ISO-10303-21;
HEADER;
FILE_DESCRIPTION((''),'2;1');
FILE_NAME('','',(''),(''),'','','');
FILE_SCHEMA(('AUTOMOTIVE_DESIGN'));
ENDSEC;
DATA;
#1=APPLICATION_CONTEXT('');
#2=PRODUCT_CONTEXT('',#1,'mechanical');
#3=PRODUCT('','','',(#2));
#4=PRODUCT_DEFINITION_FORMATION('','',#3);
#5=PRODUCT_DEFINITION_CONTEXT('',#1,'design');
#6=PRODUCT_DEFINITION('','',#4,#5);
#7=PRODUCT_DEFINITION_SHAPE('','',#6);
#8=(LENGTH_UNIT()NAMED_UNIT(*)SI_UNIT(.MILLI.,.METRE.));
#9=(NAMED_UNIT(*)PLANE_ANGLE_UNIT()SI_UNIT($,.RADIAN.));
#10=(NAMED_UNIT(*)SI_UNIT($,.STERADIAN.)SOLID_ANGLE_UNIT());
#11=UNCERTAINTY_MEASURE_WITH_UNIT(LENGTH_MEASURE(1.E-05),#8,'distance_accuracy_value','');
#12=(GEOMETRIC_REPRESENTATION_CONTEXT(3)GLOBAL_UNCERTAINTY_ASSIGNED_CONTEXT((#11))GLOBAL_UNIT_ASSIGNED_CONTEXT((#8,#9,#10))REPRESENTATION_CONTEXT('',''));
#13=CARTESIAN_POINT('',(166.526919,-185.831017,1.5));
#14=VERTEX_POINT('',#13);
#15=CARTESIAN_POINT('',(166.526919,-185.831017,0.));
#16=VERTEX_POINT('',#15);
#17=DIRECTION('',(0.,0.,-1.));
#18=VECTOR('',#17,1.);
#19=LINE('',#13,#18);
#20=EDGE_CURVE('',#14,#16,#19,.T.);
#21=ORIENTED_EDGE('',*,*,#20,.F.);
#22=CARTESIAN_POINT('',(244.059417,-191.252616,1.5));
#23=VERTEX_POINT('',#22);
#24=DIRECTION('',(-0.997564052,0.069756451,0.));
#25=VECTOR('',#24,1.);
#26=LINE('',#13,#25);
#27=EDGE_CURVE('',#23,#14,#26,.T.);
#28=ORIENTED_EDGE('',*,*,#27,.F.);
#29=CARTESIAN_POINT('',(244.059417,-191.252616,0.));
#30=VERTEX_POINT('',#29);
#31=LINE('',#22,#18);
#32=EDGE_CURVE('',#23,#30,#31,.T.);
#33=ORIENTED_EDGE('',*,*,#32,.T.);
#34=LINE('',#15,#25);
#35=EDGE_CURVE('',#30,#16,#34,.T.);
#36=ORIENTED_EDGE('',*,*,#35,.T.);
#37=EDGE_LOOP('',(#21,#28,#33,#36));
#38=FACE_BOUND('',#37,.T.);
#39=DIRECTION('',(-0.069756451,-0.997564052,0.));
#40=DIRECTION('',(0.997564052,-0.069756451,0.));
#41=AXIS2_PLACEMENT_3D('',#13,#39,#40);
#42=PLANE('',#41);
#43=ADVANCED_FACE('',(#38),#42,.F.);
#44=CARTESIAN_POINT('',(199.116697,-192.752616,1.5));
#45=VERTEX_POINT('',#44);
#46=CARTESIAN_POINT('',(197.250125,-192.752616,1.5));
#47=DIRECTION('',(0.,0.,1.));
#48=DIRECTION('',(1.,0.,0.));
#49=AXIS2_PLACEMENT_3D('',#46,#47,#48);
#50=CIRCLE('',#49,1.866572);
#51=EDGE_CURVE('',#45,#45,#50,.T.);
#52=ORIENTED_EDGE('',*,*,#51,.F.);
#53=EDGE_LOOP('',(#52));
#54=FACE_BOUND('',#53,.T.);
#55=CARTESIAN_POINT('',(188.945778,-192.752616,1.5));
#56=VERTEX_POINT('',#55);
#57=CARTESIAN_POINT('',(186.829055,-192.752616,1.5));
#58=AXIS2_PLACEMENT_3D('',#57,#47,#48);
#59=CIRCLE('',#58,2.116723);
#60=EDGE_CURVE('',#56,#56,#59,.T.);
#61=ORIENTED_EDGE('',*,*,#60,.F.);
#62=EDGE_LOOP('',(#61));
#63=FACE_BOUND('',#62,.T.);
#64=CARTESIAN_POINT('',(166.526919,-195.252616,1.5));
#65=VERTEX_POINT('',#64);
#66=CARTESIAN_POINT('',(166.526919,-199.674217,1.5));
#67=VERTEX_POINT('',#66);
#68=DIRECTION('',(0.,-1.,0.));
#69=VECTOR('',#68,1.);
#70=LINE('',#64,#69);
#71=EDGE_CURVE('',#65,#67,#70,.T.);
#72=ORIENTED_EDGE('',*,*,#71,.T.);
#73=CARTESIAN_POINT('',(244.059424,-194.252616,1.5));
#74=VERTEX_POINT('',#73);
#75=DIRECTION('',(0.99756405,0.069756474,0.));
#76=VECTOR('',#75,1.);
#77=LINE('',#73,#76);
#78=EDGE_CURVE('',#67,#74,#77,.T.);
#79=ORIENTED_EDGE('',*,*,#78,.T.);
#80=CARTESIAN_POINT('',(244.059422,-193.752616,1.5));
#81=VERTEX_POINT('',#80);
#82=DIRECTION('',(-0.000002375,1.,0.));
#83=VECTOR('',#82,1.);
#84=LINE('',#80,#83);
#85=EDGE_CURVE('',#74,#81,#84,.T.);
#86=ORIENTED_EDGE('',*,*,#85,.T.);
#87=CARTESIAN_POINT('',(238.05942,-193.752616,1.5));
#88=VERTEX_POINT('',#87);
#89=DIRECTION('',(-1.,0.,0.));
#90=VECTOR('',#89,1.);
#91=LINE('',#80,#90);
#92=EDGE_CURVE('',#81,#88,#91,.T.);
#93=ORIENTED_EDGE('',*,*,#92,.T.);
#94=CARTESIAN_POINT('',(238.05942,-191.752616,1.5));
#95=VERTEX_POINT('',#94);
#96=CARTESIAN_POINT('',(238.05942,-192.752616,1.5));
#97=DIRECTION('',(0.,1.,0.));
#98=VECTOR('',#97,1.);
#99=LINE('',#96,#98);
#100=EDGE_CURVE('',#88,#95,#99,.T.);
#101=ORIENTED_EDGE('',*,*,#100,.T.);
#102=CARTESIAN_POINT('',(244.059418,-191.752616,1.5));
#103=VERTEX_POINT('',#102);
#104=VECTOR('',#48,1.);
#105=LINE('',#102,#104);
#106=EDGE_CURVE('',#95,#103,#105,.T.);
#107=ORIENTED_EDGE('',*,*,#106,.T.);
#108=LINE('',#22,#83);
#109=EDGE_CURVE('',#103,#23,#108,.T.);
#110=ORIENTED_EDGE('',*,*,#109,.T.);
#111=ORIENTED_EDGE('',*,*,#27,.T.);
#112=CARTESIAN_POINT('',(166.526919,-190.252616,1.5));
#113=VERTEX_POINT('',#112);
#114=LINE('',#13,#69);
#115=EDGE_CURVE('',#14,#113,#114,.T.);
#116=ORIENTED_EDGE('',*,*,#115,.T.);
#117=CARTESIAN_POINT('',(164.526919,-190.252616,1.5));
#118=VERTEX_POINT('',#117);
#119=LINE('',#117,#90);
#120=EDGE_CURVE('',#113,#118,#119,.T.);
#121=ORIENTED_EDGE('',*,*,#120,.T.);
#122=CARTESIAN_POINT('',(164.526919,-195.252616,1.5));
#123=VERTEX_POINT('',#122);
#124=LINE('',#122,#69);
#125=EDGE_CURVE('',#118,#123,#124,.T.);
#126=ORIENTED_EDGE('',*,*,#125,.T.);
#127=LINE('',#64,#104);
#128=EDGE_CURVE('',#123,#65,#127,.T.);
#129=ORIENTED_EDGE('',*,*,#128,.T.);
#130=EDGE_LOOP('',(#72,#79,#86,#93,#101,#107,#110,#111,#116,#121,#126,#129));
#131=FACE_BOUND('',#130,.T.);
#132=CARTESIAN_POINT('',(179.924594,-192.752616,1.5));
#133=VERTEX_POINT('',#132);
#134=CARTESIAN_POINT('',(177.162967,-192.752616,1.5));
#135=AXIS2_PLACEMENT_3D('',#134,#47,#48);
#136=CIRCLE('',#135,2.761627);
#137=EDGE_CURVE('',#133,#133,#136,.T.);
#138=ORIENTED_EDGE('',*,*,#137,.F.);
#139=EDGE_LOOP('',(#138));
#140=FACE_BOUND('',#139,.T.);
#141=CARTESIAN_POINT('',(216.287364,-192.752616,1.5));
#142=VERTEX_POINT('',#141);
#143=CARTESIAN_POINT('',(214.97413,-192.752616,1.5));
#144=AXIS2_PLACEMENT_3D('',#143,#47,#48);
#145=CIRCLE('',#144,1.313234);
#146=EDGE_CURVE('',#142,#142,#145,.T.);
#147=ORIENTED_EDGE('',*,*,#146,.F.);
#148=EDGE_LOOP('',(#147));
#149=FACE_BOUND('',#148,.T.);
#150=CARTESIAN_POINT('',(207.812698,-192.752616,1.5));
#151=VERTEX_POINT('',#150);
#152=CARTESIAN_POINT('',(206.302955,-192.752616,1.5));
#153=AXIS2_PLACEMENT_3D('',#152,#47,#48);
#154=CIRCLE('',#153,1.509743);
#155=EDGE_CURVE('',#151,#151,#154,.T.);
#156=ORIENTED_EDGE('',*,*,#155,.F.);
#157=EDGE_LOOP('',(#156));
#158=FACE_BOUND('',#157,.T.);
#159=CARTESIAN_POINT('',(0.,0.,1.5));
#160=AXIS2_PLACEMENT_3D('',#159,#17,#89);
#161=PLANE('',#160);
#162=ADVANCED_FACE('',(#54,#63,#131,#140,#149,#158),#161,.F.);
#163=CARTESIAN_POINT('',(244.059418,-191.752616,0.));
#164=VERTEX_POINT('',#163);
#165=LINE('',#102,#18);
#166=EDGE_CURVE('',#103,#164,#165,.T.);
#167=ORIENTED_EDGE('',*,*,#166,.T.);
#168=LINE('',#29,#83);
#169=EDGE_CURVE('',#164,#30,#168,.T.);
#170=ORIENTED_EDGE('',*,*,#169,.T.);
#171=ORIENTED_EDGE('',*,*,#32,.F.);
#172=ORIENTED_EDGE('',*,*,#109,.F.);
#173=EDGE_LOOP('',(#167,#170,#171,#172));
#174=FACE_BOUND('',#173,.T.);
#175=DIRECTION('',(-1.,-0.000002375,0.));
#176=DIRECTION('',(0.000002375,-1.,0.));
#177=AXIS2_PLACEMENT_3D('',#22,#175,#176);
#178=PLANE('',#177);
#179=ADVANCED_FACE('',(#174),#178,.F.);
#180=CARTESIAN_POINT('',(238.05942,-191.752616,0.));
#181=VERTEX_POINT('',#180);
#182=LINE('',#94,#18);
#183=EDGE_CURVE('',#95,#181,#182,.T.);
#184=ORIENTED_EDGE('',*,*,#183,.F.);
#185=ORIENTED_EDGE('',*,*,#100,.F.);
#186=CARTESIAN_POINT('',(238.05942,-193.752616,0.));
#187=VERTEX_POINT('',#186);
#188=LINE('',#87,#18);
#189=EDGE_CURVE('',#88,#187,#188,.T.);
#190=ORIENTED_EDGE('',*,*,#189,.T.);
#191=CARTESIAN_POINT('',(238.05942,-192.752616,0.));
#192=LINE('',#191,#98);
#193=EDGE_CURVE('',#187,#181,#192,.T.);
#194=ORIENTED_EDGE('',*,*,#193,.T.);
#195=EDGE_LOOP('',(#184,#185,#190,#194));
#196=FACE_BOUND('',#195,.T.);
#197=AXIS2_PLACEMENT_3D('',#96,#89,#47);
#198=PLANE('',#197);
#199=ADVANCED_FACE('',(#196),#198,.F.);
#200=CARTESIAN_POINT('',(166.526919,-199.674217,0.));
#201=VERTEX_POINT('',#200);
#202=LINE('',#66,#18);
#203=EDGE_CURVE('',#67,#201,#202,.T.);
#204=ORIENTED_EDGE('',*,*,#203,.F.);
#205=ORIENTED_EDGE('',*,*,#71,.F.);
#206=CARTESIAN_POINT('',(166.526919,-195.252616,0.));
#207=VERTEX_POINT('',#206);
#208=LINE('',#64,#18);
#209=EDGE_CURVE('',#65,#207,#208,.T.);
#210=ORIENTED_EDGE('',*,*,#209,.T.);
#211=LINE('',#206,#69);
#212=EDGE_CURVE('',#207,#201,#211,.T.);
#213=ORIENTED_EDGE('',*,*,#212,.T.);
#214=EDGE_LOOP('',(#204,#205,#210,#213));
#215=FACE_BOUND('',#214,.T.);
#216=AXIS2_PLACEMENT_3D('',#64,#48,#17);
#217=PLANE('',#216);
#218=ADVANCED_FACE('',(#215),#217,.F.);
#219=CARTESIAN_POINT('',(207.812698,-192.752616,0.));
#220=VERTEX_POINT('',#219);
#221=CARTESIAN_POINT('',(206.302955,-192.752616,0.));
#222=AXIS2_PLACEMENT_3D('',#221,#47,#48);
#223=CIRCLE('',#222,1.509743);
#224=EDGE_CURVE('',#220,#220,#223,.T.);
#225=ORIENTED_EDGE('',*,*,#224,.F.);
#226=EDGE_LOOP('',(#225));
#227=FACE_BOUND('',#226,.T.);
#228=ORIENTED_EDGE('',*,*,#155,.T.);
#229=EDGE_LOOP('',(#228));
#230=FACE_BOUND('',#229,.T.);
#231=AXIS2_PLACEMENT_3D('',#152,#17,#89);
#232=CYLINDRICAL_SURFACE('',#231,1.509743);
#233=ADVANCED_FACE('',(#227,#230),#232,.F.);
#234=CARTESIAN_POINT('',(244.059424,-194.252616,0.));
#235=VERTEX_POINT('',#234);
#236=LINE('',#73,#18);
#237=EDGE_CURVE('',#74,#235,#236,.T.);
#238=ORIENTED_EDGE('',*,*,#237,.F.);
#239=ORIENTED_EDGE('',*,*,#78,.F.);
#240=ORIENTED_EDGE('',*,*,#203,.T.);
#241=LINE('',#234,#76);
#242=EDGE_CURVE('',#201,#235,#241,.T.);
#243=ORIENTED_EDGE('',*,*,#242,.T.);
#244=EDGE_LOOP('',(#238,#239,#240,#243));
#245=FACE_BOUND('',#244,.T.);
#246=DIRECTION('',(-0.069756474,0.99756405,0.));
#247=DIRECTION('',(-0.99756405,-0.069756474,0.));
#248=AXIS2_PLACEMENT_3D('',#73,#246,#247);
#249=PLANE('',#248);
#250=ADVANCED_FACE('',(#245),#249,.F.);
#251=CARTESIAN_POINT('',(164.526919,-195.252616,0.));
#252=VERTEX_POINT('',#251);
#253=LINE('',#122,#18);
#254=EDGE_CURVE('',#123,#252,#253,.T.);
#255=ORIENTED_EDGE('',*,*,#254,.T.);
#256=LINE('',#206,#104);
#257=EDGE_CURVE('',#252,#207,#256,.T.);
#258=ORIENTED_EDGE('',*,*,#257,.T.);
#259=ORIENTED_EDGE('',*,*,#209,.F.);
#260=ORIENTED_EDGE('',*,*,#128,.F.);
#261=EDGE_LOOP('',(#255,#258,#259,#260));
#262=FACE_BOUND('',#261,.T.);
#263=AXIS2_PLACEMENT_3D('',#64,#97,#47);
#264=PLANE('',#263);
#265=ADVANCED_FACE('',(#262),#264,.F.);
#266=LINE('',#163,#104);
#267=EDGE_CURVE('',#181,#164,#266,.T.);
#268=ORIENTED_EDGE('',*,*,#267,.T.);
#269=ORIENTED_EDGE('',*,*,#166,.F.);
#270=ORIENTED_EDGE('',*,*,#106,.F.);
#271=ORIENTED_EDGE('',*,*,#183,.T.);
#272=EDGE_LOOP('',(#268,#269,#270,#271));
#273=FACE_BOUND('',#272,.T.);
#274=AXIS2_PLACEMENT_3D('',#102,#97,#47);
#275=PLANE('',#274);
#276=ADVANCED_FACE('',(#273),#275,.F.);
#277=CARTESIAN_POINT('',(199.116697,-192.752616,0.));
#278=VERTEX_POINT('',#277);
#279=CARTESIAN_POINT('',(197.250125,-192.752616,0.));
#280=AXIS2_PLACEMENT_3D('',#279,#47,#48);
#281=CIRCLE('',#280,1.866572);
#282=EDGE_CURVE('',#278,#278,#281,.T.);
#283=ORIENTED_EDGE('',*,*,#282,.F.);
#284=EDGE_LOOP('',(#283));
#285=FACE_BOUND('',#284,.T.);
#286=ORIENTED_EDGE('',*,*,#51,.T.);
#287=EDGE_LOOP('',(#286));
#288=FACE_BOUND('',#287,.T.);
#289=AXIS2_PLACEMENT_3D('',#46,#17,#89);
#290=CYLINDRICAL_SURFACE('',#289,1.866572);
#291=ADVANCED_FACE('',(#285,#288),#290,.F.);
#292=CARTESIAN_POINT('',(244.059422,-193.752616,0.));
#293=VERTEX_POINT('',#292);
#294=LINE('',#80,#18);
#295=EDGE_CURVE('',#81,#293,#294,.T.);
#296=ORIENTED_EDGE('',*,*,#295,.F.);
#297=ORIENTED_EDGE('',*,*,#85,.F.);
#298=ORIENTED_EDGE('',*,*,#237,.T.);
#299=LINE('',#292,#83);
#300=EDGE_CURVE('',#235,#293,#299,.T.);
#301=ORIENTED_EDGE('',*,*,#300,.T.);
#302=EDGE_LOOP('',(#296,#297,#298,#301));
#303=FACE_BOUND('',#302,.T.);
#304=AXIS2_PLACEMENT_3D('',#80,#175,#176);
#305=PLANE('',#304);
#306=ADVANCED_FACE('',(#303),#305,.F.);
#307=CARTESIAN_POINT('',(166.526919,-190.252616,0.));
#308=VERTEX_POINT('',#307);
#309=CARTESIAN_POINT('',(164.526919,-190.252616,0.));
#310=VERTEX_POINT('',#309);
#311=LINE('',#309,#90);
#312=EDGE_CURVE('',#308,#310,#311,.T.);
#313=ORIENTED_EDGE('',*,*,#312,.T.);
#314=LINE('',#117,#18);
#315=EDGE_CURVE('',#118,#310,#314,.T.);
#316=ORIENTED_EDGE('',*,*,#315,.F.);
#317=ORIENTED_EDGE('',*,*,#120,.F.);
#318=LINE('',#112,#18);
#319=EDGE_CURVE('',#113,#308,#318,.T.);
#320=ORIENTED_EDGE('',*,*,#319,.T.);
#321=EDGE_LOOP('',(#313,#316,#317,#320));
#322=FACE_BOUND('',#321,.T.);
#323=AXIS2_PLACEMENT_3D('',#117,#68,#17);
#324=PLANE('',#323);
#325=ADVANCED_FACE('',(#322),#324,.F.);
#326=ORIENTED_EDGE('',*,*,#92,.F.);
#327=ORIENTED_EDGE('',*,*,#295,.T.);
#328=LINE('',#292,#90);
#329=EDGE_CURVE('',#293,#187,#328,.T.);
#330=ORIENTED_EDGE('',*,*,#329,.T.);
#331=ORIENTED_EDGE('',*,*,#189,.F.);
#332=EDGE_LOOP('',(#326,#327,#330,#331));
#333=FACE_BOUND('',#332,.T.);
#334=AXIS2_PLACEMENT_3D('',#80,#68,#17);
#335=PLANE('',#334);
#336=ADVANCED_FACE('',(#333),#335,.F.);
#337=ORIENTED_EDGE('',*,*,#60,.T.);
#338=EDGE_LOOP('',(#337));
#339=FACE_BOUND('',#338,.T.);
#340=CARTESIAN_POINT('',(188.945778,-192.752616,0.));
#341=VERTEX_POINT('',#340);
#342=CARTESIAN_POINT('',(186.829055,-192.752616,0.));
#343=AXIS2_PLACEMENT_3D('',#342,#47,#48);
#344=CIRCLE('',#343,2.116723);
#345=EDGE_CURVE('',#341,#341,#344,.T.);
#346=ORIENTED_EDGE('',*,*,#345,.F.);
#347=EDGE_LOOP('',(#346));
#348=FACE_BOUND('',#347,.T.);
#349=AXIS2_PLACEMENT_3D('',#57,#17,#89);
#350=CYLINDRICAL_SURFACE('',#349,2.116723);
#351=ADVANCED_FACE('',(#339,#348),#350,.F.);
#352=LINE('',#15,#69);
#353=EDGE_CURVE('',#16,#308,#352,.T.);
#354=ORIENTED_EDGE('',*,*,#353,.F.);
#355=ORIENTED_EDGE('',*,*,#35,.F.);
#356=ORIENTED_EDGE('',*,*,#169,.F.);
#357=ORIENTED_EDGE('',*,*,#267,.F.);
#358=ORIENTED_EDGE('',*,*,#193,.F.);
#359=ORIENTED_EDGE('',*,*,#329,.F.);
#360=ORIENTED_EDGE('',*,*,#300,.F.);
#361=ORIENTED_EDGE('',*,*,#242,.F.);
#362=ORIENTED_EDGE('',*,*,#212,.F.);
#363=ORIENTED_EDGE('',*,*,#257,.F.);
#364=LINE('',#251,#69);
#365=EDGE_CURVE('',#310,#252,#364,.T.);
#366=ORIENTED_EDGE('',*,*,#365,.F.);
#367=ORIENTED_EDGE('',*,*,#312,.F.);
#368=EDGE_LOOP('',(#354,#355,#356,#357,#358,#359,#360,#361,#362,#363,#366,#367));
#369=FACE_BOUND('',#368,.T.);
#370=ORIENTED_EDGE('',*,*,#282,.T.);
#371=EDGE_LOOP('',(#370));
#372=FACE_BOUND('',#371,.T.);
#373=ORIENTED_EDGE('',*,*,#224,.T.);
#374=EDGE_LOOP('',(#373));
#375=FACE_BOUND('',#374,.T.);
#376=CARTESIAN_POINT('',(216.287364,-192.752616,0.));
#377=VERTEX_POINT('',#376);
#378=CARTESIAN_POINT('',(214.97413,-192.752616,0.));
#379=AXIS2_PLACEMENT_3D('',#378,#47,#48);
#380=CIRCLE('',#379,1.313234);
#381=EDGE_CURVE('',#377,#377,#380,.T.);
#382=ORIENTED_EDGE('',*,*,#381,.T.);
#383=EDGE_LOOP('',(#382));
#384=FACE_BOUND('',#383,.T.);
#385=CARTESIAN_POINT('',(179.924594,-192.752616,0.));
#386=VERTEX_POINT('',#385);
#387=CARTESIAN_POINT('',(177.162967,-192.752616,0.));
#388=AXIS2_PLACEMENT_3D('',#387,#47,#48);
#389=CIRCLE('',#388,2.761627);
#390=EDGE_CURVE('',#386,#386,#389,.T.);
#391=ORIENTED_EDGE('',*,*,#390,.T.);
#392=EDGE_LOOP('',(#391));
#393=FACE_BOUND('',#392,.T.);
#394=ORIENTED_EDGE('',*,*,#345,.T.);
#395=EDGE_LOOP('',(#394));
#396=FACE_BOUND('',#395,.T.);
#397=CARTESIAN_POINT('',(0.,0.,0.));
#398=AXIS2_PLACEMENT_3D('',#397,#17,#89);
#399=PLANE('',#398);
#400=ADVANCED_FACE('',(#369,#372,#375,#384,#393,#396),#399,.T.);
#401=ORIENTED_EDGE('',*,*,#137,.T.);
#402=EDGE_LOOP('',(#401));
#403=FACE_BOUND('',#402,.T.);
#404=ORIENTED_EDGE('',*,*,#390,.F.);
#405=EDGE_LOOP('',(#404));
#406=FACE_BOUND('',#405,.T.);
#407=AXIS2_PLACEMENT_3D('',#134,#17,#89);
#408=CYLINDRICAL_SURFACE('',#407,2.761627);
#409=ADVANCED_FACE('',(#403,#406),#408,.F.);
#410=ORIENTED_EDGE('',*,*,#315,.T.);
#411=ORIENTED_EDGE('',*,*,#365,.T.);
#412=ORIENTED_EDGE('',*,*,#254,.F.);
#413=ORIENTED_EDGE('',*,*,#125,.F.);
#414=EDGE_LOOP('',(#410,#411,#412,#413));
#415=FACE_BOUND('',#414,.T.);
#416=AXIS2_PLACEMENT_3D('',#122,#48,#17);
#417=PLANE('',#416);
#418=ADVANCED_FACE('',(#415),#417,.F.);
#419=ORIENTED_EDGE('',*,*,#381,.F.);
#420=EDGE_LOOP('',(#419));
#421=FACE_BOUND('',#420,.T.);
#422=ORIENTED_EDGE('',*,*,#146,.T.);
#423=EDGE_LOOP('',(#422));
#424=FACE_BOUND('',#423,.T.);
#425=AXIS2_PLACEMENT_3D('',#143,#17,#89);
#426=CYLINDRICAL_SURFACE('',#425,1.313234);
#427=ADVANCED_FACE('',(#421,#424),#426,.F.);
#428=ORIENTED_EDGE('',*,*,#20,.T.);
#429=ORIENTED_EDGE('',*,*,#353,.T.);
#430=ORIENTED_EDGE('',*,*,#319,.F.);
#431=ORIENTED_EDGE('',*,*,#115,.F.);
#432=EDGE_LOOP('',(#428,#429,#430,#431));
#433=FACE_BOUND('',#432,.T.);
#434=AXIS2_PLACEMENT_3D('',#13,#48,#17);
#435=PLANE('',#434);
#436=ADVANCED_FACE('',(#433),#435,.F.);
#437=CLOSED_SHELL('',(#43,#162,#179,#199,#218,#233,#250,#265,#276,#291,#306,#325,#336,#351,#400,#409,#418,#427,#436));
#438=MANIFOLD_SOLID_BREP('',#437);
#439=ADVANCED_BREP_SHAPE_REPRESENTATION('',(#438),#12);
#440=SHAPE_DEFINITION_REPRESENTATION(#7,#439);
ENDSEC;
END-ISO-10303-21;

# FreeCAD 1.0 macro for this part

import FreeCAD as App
import Part
import Sketcher

V = App.Vector
Q = App.Units.Quantity

doc = App.newDocument("Part")
body = doc.addObject("PartDesign::Body", "Body")

sketch1 = doc.addObject("Sketcher::SketchObject", "Sketch")
body.addObject(sketch1)
sketch1.AttachmentSupport = (doc.XY_Plane, [""])
sketch1.MapMode = "FlatFace"
sketch1.addGeometry(Part.LineSegment(V(166.5, -199.7, 0), V(244.1, -194.3, 0)), False)
sketch1.addGeometry(Part.LineSegment(V(244.1, -194.3, 0), V(244.1, -193.8, 0)), False)
sketch1.addGeometry(Part.LineSegment(V(244.1, -193.8, 0), V(238.1, -193.8, 0)), False)
sketch1.addGeometry(Part.LineSegment(V(238.1, -193.8, 0), V(238.1, -191.8, 0)), False)
sketch1.addGeometry(Part.LineSegment(V(238.1, -191.8, 0), V(244.1, -191.8, 0)), False)
sketch1.addGeometry(Part.LineSegment(V(244.1, -191.8, 0), V(244.1, -191.3, 0)), False)
sketch1.addGeometry(Part.LineSegment(V(244.1, -191.3, 0), V(166.5, -185.8, 0)), False)
sketch1.addGeometry(Part.LineSegment(V(166.5, -185.8, 0), V(166.5, -190.3, 0)), False)
sketch1.addGeometry(Part.LineSegment(V(166.5, -190.3, 0), V(164.5, -190.3, 0)), False)
sketch1.addGeometry(Part.LineSegment(V(164.5, -190.3, 0), V(164.5, -195.3, 0)), False)
sketch1.addGeometry(Part.LineSegment(V(164.5, -195.3, 0), V(166.5, -195.3, 0)), False)
sketch1.addGeometry(Part.LineSegment(V(166.5, -195.3, 0), V(166.5, -199.7, 0)), False)
sketch1.addGeometry(Part.Circle(V(215, -192.8, 0), V(0, 0, 1), 1.3), False)
sketch1.addGeometry(Part.Circle(V(206.3, -192.8, 0), V(0, 0, 1), 1.5), False)
sketch1.addGeometry(Part.Circle(V(197.3, -192.8, 0), V(0, 0, 1), 1.9), False)
sketch1.addGeometry(Part.Circle(V(186.8, -192.8, 0), V(0, 0, 1), 2.1), False)
sketch1.addGeometry(Part.Circle(V(177.2, -192.8, 0), V(0, 0, 1), 2.8), False)
sketch1.addConstraint(Sketcher.Constraint("Coincident", 0, 2, 1, 1))
sketch1.addConstraint(Sketcher.Constraint("Coincident", 1, 2, 2, 1))
sketch1.addConstraint(Sketcher.Constraint("Coincident", 2, 2, 3, 1))
sketch1.addConstraint(Sketcher.Constraint("Coincident", 3, 2, 4, 1))
sketch1.addConstraint(Sketcher.Constraint("Coincident", 4, 2, 5, 1))
sketch1.addConstraint(Sketcher.Constraint("Coincident", 5, 2, 6, 1))
sketch1.addConstraint(Sketcher.Constraint("Coincident", 6, 2, 7, 1))
sketch1.addConstraint(Sketcher.Constraint("Coincident", 7, 2, 8, 1))
sketch1.addConstraint(Sketcher.Constraint("Coincident", 8, 2, 9, 1))
sketch1.addConstraint(Sketcher.Constraint("Coincident", 9, 2, 10, 1))
sketch1.addConstraint(Sketcher.Constraint("Coincident", 10, 2, 11, 1))
sketch1.addConstraint(Sketcher.Constraint("Coincident", 11, 2, 0, 1))
sketch1.addConstraint(Sketcher.Constraint("Vertical", 1))
sketch1.addConstraint(Sketcher.Constraint("Horizontal", 2))
sketch1.addConstraint(Sketcher.Constraint("Vertical", 3))
sketch1.addConstraint(Sketcher.Constraint("Horizontal", 4))
sketch1.addConstraint(Sketcher.Constraint("Vertical", 5))
sketch1.addConstraint(Sketcher.Constraint("Vertical", 7))
sketch1.addConstraint(Sketcher.Constraint("Horizontal", 8))
sketch1.addConstraint(Sketcher.Constraint("Vertical", 9))
sketch1.addConstraint(Sketcher.Constraint("Horizontal", 10))
sketch1.addConstraint(Sketcher.Constraint("Vertical", 11))
sketch1.addConstraint(Sketcher.Constraint("Horizontal", 12, 3, 13, 3))
sketch1.addConstraint(Sketcher.Constraint("Horizontal", 13, 3, 14, 3))
sketch1.addConstraint(Sketcher.Constraint("Horizontal", 14, 3, 15, 3))
sketch1.addConstraint(Sketcher.Constraint("Horizontal", 15, 3, 16, 3))
sketch1.addConstraint(Sketcher.Constraint("Vertical", 7, 2, 10, 2))
sketch1.addConstraint(Sketcher.Constraint("Equal", 10, 3))
sketch1.addConstraint(Sketcher.Constraint("Equal", 1, 5))
sketch1.addConstraint(Sketcher.Constraint("DistanceX", 8, 2, 8, 1, Q("2 mm")))
sketch1.addConstraint(Sketcher.Constraint("DistanceY", 9, 2, 9, 1, Q("5 mm")))
sketch1.addConstraint(Sketcher.Constraint("Angle", 0, Q("4 deg")))
sketch1.addConstraint(Sketcher.Constraint("Angle", 6, Q("176.000001 deg")))
sketch1.addConstraint(Sketcher.Constraint("DistanceY", 1, 1, 1, 2, Q("0.5 mm")))
sketch1.addConstraint(Sketcher.Constraint("DistanceY", 1, 2, 12, 3, Q("1 mm")))
sketch1.addConstraint(Sketcher.Constraint("DistanceY", 16, 3, 7, 2, Q("2.5 mm")))
sketch1.addConstraint(Sketcher.Constraint("Diameter", 12, Q("2.626468 mm")))
sketch1.addConstraint(Sketcher.Constraint("Diameter", 13, Q("3.019486 mm")))
sketch1.addConstraint(Sketcher.Constraint("Diameter", 14, Q("3.733143 mm")))
sketch1.addConstraint(Sketcher.Constraint("Diameter", 15, Q("4.233445 mm")))
sketch1.addConstraint(Sketcher.Constraint("Diameter", 16, Q("5.523253 mm")))
sketch1.addConstraint(Sketcher.Constraint("DistanceY", 7, 2, 7, 1, Q("4.421599 mm")))
sketch1.addConstraint(Sketcher.Constraint("DistanceY", 11, 2, 11, 1, Q("4.421601 mm")))
sketch1.addConstraint(Sketcher.Constraint("DistanceX", 15, 3, 13, 3, Q("19.4739 mm")))
sketch1.addConstraint(Sketcher.Constraint("DistanceX", 14, 3, 0, 2, Q("46.809299 mm")))
sketch1.addConstraint(Sketcher.Constraint("DistanceX", 2, 2, 2, 1, Q("6.000002 mm")))
sketch1.addConstraint(Sketcher.Constraint("DistanceX", -1, 1, 12, 3, Q("214.97413 mm")))
sketch1.addConstraint(Sketcher.Constraint("DistanceX", -1, 1, 2, 2, Q("238.05942 mm")))
sketch1.addConstraint(Sketcher.Constraint("DistanceX", 14, 3, 13, 3, Q("9.05283 mm")))
sketch1.addConstraint(Sketcher.Constraint("DistanceX", 6, 2, 16, 3, Q("10.636048 mm")))
sketch1.addConstraint(Sketcher.Constraint("DistanceY", 12, 3, -1, 1, Q("192.752616 mm")))
pad1 = doc.addObject("PartDesign::Pad", "Pad")
body.addObject(pad1)
pad1.Profile = sketch1
pad1.Length = 1.5

doc.recompute()
